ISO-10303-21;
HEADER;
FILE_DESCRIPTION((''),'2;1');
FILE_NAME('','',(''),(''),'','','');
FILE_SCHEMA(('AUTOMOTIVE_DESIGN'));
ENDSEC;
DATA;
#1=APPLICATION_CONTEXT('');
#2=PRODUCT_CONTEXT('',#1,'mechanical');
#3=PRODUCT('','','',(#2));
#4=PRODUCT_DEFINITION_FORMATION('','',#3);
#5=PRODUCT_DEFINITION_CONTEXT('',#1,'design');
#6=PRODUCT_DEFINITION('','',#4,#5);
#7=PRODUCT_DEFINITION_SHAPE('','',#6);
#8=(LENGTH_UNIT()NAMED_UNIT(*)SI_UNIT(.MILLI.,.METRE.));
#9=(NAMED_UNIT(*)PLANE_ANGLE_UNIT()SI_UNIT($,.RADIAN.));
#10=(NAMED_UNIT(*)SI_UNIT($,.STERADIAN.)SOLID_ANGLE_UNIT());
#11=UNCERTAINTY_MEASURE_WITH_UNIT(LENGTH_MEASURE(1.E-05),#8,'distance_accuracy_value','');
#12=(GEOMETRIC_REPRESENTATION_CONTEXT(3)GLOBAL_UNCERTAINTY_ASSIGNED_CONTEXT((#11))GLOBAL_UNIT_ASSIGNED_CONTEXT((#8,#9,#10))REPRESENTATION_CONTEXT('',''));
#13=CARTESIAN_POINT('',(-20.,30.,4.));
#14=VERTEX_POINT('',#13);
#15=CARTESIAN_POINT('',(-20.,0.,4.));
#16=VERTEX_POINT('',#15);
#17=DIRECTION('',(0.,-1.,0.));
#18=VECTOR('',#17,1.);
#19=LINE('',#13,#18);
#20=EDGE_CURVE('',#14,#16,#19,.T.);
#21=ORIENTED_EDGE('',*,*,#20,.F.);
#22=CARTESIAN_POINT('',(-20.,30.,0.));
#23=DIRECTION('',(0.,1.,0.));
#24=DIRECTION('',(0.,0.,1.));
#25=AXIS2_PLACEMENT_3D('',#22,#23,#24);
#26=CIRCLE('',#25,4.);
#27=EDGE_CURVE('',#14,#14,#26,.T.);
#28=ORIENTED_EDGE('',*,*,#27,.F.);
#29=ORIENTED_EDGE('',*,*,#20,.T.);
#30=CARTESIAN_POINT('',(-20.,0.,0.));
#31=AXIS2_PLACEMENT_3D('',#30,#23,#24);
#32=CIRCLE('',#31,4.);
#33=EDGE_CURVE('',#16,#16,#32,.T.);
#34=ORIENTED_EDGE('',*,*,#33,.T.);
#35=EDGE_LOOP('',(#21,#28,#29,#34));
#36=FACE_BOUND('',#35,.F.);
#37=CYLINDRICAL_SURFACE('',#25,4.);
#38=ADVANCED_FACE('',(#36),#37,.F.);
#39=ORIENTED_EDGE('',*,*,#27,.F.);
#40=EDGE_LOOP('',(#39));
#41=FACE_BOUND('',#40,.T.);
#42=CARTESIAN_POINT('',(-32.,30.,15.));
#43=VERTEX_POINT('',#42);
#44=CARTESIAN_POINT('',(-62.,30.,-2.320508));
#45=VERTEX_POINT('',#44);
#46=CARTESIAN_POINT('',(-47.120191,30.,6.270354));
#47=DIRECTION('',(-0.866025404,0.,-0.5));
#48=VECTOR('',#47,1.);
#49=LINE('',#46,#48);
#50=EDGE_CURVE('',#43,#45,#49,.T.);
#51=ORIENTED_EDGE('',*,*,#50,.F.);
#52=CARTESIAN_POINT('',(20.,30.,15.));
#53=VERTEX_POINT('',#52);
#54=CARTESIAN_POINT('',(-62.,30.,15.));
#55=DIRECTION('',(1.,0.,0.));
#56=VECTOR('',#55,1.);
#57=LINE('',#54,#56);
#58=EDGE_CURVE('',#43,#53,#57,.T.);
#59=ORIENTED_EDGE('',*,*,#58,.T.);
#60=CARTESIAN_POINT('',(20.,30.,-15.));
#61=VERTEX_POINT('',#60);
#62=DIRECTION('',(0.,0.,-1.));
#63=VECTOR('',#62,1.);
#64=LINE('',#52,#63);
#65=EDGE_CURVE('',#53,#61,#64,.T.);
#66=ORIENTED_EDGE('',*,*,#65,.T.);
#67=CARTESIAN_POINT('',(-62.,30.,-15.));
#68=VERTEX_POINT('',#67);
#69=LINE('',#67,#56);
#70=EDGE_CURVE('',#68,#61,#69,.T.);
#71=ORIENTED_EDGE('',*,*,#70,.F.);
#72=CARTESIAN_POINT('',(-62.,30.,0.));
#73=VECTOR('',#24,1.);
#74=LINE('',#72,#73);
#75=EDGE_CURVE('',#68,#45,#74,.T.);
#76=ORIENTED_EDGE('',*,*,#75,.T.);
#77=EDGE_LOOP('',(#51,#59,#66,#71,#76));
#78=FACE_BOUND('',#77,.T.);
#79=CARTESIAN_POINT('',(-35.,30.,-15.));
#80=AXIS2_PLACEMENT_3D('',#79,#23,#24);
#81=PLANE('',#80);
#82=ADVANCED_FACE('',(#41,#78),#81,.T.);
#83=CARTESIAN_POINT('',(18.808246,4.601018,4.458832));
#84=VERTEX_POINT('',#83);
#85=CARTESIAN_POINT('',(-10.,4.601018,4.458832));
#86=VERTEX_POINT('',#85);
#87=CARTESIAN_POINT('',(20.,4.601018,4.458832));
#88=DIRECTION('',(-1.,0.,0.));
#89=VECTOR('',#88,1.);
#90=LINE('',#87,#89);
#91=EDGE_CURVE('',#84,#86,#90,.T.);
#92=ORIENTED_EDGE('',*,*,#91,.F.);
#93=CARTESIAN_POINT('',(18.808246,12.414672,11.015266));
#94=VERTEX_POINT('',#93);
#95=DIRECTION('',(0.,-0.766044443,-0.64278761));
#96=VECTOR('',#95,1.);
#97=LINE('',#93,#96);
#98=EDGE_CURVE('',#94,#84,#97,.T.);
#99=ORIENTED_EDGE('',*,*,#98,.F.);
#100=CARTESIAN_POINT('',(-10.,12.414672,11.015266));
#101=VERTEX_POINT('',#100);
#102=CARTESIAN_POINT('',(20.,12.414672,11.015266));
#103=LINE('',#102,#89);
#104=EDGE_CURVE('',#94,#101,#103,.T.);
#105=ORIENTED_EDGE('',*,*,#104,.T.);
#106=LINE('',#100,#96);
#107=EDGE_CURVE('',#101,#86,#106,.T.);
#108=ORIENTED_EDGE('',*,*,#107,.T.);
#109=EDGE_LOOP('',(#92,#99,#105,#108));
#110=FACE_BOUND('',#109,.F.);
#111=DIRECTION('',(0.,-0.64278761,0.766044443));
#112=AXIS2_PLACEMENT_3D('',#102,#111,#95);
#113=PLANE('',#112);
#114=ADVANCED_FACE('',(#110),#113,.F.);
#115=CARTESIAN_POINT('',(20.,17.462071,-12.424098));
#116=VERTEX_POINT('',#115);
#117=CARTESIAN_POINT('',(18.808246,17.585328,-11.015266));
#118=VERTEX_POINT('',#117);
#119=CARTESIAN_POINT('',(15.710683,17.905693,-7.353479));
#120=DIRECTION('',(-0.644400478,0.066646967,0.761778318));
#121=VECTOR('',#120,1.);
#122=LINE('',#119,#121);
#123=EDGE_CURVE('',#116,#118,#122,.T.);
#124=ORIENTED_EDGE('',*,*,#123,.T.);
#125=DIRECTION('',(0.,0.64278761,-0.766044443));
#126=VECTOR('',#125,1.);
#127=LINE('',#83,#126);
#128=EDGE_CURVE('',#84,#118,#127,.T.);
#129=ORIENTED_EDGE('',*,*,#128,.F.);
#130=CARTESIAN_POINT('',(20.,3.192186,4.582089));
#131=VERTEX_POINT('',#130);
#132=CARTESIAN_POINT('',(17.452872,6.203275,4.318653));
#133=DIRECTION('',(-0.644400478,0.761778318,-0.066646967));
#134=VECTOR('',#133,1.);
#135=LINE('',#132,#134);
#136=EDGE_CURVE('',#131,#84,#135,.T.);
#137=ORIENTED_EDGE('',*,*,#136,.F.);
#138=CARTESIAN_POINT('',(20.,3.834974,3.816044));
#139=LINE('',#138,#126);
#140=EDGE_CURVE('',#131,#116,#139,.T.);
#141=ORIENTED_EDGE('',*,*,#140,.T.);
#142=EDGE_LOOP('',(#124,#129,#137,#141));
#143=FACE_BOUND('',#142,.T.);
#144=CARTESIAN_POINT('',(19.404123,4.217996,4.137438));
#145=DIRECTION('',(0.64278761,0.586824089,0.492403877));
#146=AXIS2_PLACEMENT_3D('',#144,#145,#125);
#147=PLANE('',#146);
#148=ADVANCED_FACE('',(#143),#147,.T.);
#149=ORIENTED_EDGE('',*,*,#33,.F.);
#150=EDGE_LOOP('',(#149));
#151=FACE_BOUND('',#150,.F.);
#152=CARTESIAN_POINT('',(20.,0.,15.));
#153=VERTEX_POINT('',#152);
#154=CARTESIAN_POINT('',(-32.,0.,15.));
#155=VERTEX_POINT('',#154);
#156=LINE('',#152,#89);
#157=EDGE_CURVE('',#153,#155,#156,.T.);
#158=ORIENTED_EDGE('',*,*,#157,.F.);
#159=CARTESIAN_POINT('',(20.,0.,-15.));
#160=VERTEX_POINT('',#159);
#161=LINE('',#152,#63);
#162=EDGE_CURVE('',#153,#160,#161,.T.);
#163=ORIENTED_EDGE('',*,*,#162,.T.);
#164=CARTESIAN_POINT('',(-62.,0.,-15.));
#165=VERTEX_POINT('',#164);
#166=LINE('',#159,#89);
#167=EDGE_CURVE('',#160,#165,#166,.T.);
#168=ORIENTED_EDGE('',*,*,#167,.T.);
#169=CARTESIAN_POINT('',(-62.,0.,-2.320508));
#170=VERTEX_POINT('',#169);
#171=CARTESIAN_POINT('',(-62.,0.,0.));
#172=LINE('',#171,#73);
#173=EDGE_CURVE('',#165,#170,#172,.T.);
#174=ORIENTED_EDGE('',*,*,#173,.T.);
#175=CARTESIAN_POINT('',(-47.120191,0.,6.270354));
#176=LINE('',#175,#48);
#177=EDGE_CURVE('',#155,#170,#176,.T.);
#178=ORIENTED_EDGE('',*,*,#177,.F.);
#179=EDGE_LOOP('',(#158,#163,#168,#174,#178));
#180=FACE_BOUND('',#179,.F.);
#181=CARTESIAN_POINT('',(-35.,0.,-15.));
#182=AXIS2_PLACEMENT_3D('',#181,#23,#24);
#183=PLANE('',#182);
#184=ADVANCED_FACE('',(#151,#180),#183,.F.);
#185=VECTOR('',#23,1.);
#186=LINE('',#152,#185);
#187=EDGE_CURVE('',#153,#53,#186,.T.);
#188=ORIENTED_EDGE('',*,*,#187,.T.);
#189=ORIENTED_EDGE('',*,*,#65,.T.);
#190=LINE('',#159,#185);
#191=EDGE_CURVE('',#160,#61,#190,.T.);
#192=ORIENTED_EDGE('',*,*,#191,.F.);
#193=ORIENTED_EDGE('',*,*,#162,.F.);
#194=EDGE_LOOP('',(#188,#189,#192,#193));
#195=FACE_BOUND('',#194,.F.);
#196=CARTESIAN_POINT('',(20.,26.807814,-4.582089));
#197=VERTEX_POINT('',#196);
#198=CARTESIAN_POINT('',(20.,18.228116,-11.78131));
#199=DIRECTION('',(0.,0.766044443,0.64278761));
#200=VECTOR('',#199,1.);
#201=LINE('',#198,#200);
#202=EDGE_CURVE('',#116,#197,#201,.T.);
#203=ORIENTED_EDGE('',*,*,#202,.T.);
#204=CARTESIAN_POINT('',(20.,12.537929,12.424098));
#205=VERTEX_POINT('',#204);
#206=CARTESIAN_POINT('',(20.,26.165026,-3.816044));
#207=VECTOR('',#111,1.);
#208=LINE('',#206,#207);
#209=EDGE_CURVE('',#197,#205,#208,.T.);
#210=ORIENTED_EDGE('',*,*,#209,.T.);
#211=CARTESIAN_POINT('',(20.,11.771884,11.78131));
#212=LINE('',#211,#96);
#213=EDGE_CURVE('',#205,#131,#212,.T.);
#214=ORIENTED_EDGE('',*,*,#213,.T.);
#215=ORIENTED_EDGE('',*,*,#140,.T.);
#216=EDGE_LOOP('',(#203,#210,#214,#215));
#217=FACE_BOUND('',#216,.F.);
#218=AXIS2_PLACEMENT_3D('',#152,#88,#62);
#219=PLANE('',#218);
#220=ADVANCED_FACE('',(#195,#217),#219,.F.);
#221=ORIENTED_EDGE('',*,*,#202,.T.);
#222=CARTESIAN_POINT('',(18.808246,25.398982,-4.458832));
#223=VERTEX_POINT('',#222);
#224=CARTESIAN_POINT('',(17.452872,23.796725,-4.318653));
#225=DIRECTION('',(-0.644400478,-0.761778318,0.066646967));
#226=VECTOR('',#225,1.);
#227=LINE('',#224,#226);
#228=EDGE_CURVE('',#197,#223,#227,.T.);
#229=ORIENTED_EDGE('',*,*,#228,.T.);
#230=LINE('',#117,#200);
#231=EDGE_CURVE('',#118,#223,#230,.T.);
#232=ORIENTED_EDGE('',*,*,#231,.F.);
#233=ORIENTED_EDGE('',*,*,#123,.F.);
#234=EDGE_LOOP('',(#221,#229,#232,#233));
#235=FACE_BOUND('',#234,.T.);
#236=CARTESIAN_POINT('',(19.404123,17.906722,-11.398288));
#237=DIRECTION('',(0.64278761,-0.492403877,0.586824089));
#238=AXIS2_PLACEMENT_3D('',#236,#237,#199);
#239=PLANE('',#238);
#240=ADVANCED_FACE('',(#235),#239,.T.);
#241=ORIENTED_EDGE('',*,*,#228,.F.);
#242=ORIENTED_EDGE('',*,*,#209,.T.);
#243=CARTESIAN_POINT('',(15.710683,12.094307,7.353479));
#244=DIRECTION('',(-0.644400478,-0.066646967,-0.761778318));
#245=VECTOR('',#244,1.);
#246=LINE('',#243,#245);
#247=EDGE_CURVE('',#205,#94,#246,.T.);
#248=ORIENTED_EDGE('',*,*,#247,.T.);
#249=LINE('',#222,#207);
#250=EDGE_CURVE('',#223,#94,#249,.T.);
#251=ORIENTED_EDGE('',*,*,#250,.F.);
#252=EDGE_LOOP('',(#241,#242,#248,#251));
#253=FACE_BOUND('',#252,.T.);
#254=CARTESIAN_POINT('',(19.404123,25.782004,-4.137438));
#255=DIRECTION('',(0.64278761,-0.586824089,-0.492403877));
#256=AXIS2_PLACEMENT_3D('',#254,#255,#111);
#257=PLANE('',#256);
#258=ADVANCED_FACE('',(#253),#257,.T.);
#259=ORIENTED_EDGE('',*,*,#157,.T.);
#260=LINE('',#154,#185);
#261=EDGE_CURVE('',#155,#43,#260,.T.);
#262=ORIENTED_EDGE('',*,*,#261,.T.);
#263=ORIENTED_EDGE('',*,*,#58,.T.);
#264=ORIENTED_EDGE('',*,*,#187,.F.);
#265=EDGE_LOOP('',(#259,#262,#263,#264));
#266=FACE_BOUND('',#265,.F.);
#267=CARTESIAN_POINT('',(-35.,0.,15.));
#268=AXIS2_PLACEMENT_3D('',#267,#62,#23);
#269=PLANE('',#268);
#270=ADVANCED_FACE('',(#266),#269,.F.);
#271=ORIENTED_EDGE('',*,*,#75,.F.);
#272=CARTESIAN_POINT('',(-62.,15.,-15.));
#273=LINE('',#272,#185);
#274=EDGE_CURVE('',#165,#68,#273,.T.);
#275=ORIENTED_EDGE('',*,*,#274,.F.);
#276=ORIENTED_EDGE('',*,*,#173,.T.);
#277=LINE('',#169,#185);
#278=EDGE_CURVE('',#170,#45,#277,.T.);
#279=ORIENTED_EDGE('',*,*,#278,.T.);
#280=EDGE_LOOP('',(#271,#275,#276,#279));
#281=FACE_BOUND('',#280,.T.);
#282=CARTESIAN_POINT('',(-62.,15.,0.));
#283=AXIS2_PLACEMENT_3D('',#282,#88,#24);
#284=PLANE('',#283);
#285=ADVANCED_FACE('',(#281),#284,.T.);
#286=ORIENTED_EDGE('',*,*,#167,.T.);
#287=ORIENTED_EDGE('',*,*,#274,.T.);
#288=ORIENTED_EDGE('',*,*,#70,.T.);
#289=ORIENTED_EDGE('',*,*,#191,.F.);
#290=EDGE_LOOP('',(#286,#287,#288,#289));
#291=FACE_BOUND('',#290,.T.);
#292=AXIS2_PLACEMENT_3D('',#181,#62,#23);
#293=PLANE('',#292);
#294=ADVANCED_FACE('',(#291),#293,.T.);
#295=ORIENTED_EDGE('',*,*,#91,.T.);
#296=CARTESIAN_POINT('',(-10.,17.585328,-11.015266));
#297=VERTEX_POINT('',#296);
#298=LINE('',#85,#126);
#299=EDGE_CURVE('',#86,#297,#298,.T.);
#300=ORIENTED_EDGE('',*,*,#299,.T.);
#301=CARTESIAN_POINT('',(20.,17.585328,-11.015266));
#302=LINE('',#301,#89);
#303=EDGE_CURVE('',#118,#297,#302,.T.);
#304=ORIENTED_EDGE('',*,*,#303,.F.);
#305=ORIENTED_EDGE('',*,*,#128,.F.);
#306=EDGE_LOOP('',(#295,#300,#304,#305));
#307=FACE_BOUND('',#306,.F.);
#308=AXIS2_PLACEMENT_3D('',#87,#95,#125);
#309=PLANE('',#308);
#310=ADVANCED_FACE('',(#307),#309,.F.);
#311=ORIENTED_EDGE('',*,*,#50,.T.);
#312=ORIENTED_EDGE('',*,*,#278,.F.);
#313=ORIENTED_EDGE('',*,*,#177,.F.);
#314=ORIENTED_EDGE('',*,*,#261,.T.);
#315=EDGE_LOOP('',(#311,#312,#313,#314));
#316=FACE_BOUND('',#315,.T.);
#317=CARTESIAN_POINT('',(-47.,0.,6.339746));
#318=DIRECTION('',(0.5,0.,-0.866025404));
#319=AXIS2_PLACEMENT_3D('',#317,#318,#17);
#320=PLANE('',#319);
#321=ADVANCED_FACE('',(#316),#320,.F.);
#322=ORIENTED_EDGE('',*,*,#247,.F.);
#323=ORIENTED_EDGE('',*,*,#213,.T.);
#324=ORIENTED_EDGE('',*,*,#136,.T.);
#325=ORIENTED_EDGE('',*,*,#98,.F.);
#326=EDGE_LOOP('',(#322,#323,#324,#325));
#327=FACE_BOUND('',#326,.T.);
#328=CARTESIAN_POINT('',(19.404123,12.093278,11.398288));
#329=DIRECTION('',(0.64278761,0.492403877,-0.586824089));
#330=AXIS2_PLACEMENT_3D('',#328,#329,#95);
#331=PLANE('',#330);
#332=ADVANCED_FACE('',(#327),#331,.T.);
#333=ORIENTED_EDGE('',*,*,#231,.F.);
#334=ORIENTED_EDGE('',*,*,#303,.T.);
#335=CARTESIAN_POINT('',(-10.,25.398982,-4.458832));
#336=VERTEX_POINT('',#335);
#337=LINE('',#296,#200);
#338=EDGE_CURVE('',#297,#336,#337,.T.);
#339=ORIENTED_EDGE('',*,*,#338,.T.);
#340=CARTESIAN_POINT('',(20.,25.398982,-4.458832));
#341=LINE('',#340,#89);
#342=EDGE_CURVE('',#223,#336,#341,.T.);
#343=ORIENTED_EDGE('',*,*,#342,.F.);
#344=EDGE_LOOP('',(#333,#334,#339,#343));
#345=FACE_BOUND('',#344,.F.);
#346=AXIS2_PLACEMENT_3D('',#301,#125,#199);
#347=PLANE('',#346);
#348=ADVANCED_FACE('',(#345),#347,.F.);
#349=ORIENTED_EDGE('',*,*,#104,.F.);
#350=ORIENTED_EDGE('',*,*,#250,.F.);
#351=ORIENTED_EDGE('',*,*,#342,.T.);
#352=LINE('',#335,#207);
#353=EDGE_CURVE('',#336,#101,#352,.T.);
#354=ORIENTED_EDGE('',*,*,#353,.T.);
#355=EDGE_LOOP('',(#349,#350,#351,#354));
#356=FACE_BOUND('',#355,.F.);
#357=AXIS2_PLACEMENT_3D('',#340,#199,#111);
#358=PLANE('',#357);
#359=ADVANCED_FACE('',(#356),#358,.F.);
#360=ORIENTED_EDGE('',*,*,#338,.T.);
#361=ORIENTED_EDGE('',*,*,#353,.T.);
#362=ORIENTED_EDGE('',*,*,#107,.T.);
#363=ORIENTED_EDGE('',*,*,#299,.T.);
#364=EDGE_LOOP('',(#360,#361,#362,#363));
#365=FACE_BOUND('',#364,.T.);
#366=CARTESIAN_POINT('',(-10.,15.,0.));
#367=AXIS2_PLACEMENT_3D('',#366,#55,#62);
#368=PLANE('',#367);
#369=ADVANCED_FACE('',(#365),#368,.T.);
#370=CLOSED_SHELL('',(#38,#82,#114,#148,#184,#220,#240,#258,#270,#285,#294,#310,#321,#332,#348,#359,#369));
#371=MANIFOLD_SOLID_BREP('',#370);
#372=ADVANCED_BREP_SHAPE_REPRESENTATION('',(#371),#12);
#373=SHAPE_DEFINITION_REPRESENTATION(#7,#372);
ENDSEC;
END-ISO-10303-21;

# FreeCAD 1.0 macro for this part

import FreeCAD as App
import Part
import Sketcher
from FreeCAD import Vector
Q = App.Units.Quantity


def edges_at(feature, points):
    """Names of the edges that pass closest to the given points."""
    edges = feature.Shape.Edges
    near = lambda p: min(range(len(edges)), key=lambda i: edges[i].distToShape(Part.Vertex(*p))[0])
    return sorted({f"Edge{near(p) + 1}" for p in points})

doc = App.newDocument("Part")
params = doc.addObject("Spreadsheet::Sheet", "Params")
for row, (alias, value) in enumerate([
    ("sketch1_width", "55 mm"),
    ("sketch1_height", "30 mm"),
    ("pad1_length", "30 mm"),
    ("sketch2_diameter", "8 mm"),
    ("sketch3_length", "10.2 mm"),
    ("sketch3_length2", "20.2 mm"),
    ("pocket2_length", "30 mm"),
    ("sketch4_width", "30 mm"),
    ("pad2_length", "27 mm"),
    ("chamfer_size", "30 mm"),
    ("chamfer_size2", "17.320508 mm"),
    ("chamfer2_size", "1 mm"),
    ("chamfer2_size2", "1.191754 mm"),
], start=1):
    params.set(f"A{row}", alias)
    params.set(f"B{row}", "=" + value)
    params.setAlias(f"B{row}", alias)

body = doc.addObject("PartDesign::Body", "Body")

# Sketch on XZ plane
sketch1 = body.newObject("Sketcher::SketchObject", "Sketch")
sketch1.AttachmentSupport = (doc.getObject("XZ_Plane"), [""])
sketch1.MapMode = "FlatFace"
sketch1.addGeometry([
    Part.LineSegment(Vector(-35, -15, 0), Vector(-35, 15, 0)),
    Part.LineSegment(Vector(-35, 15, 0), Vector(20, 15, 0)),
    Part.LineSegment(Vector(20, 15, 0), Vector(20, -15, 0)),
    Part.LineSegment(Vector(20, -15, 0), Vector(-35, -15, 0)),
], False)
sketch1.addConstraint([
    Sketcher.Constraint("Coincident", 0, 2, 1, 1),
    Sketcher.Constraint("Coincident", 1, 2, 2, 1),
    Sketcher.Constraint("Coincident", 2, 2, 3, 1),
    Sketcher.Constraint("Coincident", 3, 2, 0, 1),
    Sketcher.Constraint("Vertical", 0),
    Sketcher.Constraint("Horizontal", 1),
    Sketcher.Constraint("Vertical", 2),
    Sketcher.Constraint("Horizontal", 3),
    Sketcher.Constraint("DistanceX", 1, 1, 1, 2, Q("55 mm")),
    Sketcher.Constraint("DistanceY", 0, 1, 0, 2, Q("30 mm")),
    Sketcher.Constraint("DistanceX", 0, 2, -1, 1, Q("35 mm")),
    Sketcher.Constraint("DistanceY", -1, 1, 0, 2, Q("15 mm")),
])
sketch1.setExpression("Constraints[8]", "Params.sketch1_width")
sketch1.setExpression("Constraints[9]", "Params.sketch1_height")
pad1 = body.newObject("PartDesign::Pad", "Pad")
pad1.Profile = sketch1
pad1.setExpression("Length", "Params.pad1_length")
pad1.Reversed = True

# Sketch on XZ plane
sketch2 = body.newObject("Sketcher::SketchObject", "Sketch001")
sketch2.AttachmentSupport = (doc.getObject("XZ_Plane"), [""])
sketch2.MapMode = "FlatFace"
sketch2.AttachmentOffset = App.Placement(Vector(0, 0, -30), App.Rotation())
sketch2.addGeometry(Part.Circle(Vector(-20, 0, 0), Vector(0, 0, 1), 4), False)
sketch2.addConstraint([
    Sketcher.Constraint("PointOnObject", 0, 3, -1),
    Sketcher.Constraint("Diameter", 0, Q("8 mm")),
    Sketcher.Constraint("DistanceX", 0, 3, -1, 1, Q("20 mm")),
])
sketch2.setExpression("Constraints[1]", "Params.sketch2_diameter")
pocket1 = body.newObject("PartDesign::Pocket", "Pocket")
pocket1.Profile = sketch2
pocket1.Type = "ThroughAll"
pocket1.Reversed = True

# Sketch on YZ plane
sketch3 = body.newObject("Sketcher::SketchObject", "Sketch002")
sketch3.AttachmentSupport = (doc.getObject("YZ_Plane"), [""])
sketch3.MapMode = "FlatFace"
sketch3.AttachmentOffset = App.Placement(Vector(0, 0, 20), App.Rotation())
sketch3.addGeometry([
    Part.LineSegment(Vector(18, -11, 0), Vector(25, -4, 0)),
    Part.LineSegment(Vector(25, -4, 0), Vector(12, 11, 0)),
    Part.LineSegment(Vector(12, 11, 0), Vector(5, 4, 0)),
    Part.LineSegment(Vector(5, 4, 0), Vector(18, -11, 0)),
], False)
sketch3.addConstraint([
    Sketcher.Constraint("Coincident", 0, 2, 1, 1),
    Sketcher.Constraint("Coincident", 1, 2, 2, 1),
    Sketcher.Constraint("Coincident", 2, 2, 3, 1),
    Sketcher.Constraint("Coincident", 3, 2, 0, 1),
    Sketcher.Constraint("Perpendicular", 0, 1),
    Sketcher.Constraint("Perpendicular", 1, 2),
    Sketcher.Constraint("Perpendicular", 2, 3),
    Sketcher.Constraint("Angle", 0, Q("40 deg")),
    Sketcher.Constraint("Distance", 0, Q("10.2 mm")),
    Sketcher.Constraint("Distance", 1, Q("20.2 mm")),
    Sketcher.Constraint("DistanceX", -1, 1, 0, 2, Q("25.398982 mm")),
    Sketcher.Constraint("DistanceY", 0, 2, -1, 1, Q("4.458832 mm")),
])
sketch3.setExpression("Constraints[8]", "Params.sketch3_length")
sketch3.setExpression("Constraints[9]", "Params.sketch3_length2")
pocket2 = body.newObject("PartDesign::Pocket", "Pocket001")
pocket2.Profile = sketch3
pocket2.setExpression("Length", "Params.pocket2_length")

# Sketch on YZ plane
sketch4 = body.newObject("Sketcher::SketchObject", "Sketch003")
sketch4.AttachmentSupport = (doc.getObject("YZ_Plane"), [""])
sketch4.MapMode = "FlatFace"
sketch4.AttachmentOffset = App.Placement(Vector(0, 0, -35), App.Rotation())
sketch4.addGeometry([
    Part.LineSegment(Vector(30, -15, 0), Vector(0, -15, 0)),
    Part.LineSegment(Vector(0, -15, 0), Vector(0, 15, 0)),
    Part.LineSegment(Vector(0, 15, 0), Vector(30, 15, 0)),
    Part.LineSegment(Vector(30, 15, 0), Vector(30, -15, 0)),
], False)
sketch4.addConstraint([
    Sketcher.Constraint("Coincident", 0, 2, 1, 1),
    Sketcher.Constraint("Coincident", 1, 2, 2, 1),
    Sketcher.Constraint("Coincident", 2, 2, 3, 1),
    Sketcher.Constraint("Coincident", 3, 2, 0, 1),
    Sketcher.Constraint("Horizontal", 0),
    Sketcher.Constraint("Vertical", 1),
    Sketcher.Constraint("Horizontal", 2),
    Sketcher.Constraint("Vertical", 3),
    Sketcher.Constraint("Symmetric", 0, 2, 1, 2, -1, 1),
    Sketcher.Constraint("Equal", 2, 1),
    Sketcher.Constraint("DistanceX", 0, 2, 0, 1, Q("30 mm")),
])
sketch4.setExpression("Constraints[10]", "Params.sketch4_width")
pad2 = body.newObject("PartDesign::Pad", "Pad001")
pad2.Profile = sketch4
pad2.setExpression("Length", "Params.pad2_length")
pad2.Reversed = True
doc.recompute()

chamfer = body.newObject("PartDesign::Chamfer", "Chamfer")
chamfer.Base = (pad2, edges_at(pad2, [(-62, 15, 15)]))
chamfer.ChamferType = "Two distances"
chamfer.setExpression("Size", "Params.chamfer_size")
chamfer.setExpression("Size2", "Params.chamfer_size2")
chamfer.FlipDirection = True
doc.recompute()

chamfer2 = body.newObject("PartDesign::Chamfer", "Chamfer001")
chamfer2.Base = (chamfer, edges_at(chamfer, [
    (20, 18.907, 3.278),
    (20, 8.508, 7.737),
    (20, 11.093, -3.278),
    (20, 21.492, -7.737),
]))
chamfer2.ChamferType = "Two distances"
chamfer2.setExpression("Size", "Params.chamfer2_size")
chamfer2.setExpression("Size2", "Params.chamfer2_size2")

doc.recompute()
